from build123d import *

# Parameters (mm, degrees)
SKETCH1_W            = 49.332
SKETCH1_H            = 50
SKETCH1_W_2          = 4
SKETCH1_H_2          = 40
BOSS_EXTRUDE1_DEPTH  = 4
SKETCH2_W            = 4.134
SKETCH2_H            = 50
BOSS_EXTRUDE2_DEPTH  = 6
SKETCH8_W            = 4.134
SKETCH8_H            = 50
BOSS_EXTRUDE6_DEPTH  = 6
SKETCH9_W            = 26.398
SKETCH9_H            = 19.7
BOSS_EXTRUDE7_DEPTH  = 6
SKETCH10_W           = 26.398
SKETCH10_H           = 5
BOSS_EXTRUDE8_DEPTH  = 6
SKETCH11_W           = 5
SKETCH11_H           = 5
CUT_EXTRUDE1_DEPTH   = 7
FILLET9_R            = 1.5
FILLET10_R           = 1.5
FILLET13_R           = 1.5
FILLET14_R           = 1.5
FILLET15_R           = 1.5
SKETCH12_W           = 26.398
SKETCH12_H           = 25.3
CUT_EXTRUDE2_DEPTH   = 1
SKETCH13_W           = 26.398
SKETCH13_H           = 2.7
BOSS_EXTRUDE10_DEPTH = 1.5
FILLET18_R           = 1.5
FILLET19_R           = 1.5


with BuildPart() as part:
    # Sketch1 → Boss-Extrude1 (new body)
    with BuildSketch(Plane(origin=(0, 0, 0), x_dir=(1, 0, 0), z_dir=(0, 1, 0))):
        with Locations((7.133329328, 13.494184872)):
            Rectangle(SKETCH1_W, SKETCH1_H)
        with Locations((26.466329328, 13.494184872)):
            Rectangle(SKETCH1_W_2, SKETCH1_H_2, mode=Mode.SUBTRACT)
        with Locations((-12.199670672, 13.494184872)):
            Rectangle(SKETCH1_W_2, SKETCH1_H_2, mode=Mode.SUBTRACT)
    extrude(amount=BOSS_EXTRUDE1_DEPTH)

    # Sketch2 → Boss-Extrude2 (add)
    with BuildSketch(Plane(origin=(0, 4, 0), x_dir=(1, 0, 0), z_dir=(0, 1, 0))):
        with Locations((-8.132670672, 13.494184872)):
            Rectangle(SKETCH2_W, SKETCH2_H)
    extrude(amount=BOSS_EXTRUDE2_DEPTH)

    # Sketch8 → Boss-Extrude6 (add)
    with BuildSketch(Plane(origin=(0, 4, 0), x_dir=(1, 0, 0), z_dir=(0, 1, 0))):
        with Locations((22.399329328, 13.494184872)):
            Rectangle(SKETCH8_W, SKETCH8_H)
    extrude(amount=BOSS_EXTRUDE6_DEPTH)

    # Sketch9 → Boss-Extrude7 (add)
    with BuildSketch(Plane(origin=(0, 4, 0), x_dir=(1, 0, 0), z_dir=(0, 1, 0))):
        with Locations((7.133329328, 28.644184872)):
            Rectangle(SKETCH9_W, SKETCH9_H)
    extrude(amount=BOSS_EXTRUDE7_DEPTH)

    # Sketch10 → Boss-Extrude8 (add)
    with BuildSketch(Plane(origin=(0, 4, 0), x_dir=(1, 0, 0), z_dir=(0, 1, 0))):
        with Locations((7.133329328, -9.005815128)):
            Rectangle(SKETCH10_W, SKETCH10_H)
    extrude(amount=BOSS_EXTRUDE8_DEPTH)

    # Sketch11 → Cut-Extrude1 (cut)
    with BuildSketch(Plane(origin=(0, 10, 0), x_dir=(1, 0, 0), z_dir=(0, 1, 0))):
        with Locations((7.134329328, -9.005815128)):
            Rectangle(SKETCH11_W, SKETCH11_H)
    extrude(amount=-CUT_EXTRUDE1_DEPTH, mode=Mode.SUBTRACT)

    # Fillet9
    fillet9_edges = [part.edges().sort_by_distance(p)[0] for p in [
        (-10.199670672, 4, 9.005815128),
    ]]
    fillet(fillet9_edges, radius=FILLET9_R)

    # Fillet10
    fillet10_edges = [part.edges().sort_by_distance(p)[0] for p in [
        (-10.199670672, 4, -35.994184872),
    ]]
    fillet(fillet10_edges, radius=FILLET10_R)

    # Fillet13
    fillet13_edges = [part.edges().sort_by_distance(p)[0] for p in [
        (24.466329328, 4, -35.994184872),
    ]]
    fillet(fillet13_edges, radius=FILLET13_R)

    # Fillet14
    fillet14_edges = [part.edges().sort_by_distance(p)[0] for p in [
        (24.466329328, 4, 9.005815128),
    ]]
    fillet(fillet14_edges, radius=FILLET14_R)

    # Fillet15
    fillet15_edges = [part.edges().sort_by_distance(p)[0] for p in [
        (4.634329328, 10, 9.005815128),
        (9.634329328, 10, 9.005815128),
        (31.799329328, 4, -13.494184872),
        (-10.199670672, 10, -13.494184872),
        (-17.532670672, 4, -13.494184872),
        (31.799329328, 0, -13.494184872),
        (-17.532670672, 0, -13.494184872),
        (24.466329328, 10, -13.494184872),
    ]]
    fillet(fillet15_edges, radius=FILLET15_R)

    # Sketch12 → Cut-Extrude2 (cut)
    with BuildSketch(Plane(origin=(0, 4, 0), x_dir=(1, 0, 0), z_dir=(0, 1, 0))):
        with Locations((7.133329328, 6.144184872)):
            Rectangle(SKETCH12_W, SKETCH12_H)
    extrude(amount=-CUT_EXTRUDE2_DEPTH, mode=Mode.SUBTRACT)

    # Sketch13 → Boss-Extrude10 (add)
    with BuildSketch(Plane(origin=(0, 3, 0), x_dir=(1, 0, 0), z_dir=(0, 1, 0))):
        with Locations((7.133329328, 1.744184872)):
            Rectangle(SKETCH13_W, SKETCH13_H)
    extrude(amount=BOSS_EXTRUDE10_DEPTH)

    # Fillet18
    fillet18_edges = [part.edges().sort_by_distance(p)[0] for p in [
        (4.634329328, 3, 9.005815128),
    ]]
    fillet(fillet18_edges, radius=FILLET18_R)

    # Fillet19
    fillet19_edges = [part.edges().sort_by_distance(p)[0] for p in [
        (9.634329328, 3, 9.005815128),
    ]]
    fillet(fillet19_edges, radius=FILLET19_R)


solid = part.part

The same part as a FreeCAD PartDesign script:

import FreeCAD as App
import Part
import Sketcher
Q = App.Units.Quantity


def edges_at(feature, points):
    """Names of the edges that pass closest to the given points."""
    edges = feature.Shape.Edges
    near = lambda p: min(range(len(edges)), key=lambda i: edges[i].distToShape(Part.Vertex(*p))[0])
    return sorted({f"Edge{near(p) + 1}" for p in points})

doc = App.newDocument("Part")
body = doc.addObject("PartDesign::Body", "Body")

sketch1 = doc.addObject("Sketcher::SketchObject", "Sketch")
body.addObject(sketch1)
sketch1.AttachmentSupport = (doc.XZ_Plane, [""])
sketch1.MapMode = "FlatFace"
sketch1.addGeometry(Part.LineSegment(App.Vector(-17.5, -38.5, 0), App.Vector(-17.5, 11.5, 0)), False)
sketch1.addGeometry(Part.LineSegment(App.Vector(-17.5, 11.5, 0), App.Vector(31.8, 11.5, 0)), False)
sketch1.addGeometry(Part.LineSegment(App.Vector(31.8, 11.5, 0), App.Vector(31.8, -38.5, 0)), False)
sketch1.addGeometry(Part.LineSegment(App.Vector(31.8, -38.5, 0), App.Vector(-17.5, -38.5, 0)), False)
sketch1.addGeometry(Part.LineSegment(App.Vector(-10.2, 6.5, 0), App.Vector(-14.2, 6.5, 0)), False)
sketch1.addGeometry(Part.LineSegment(App.Vector(-14.2, 6.5, 0), App.Vector(-14.2, -33.5, 0)), False)
sketch1.addGeometry(Part.LineSegment(App.Vector(-14.2, -33.5, 0), App.Vector(-10.2, -33.5, 0)), False)
sketch1.addGeometry(Part.LineSegment(App.Vector(-10.2, -33.5, 0), App.Vector(-10.2, 6.5, 0)), False)
sketch1.addGeometry(Part.LineSegment(App.Vector(28.5, 6.5, 0), App.Vector(24.5, 6.5, 0)), False)
sketch1.addGeometry(Part.LineSegment(App.Vector(24.5, 6.5, 0), App.Vector(24.5, -33.5, 0)), False)
sketch1.addGeometry(Part.LineSegment(App.Vector(24.5, -33.5, 0), App.Vector(28.5, -33.5, 0)), False)
sketch1.addGeometry(Part.LineSegment(App.Vector(28.5, -33.5, 0), App.Vector(28.5, 6.5, 0)), False)
sketch1.addConstraint(Sketcher.Constraint("Coincident", 0, 2, 1, 1))
sketch1.addConstraint(Sketcher.Constraint("Coincident", 1, 2, 2, 1))
sketch1.addConstraint(Sketcher.Constraint("Coincident", 2, 2, 3, 1))
sketch1.addConstraint(Sketcher.Constraint("Coincident", 3, 2, 0, 1))
sketch1.addConstraint(Sketcher.Constraint("Coincident", 4, 2, 5, 1))
sketch1.addConstraint(Sketcher.Constraint("Coincident", 5, 2, 6, 1))
sketch1.addConstraint(Sketcher.Constraint("Coincident", 6, 2, 7, 1))
sketch1.addConstraint(Sketcher.Constraint("Coincident", 7, 2, 4, 1))
sketch1.addConstraint(Sketcher.Constraint("Coincident", 8, 2, 9, 1))
sketch1.addConstraint(Sketcher.Constraint("Coincident", 9, 2, 10, 1))
sketch1.addConstraint(Sketcher.Constraint("Coincident", 10, 2, 11, 1))
sketch1.addConstraint(Sketcher.Constraint("Coincident", 11, 2, 8, 1))
sketch1.addConstraint(Sketcher.Constraint("Vertical", 0))
sketch1.addConstraint(Sketcher.Constraint("Horizontal", 1))
sketch1.addConstraint(Sketcher.Constraint("Vertical", 2))
sketch1.addConstraint(Sketcher.Constraint("Horizontal", 3))
sketch1.addConstraint(Sketcher.Constraint("Horizontal", 4))
sketch1.addConstraint(Sketcher.Constraint("Vertical", 5))
sketch1.addConstraint(Sketcher.Constraint("Horizontal", 6))
sketch1.addConstraint(Sketcher.Constraint("Vertical", 7))
sketch1.addConstraint(Sketcher.Constraint("Horizontal", 8))
sketch1.addConstraint(Sketcher.Constraint("Vertical", 9))
sketch1.addConstraint(Sketcher.Constraint("Horizontal", 10))
sketch1.addConstraint(Sketcher.Constraint("Vertical", 11))
sketch1.addConstraint(Sketcher.Constraint("Horizontal", 7, 2, 8, 2))
sketch1.addConstraint(Sketcher.Constraint("Horizontal", 6, 2, 9, 2))
sketch1.addConstraint(Sketcher.Constraint("Equal", 6, 8))
sketch1.addConstraint(Sketcher.Constraint("DistanceX", 4, 2, 4, 1, Q("4 mm")))
sketch1.addConstraint(Sketcher.Constraint("DistanceY", 0, 1, 0, 2, Q("50 mm")))
sketch1.addConstraint(Sketcher.Constraint("DistanceY", 5, 2, 5, 1, Q("40 mm")))
sketch1.addConstraint(Sketcher.Constraint("DistanceY", 4, 2, 0, 2, Q("5 mm")))
sketch1.addConstraint(Sketcher.Constraint("DistanceX", 1, 1, 1, 2, Q("49.332 mm")))
sketch1.addConstraint(Sketcher.Constraint("DistanceX", 0, 2, 4, 2, Q("3.333 mm")))
sketch1.addConstraint(Sketcher.Constraint("DistanceX", 8, 2, 1, 2, Q("7.333 mm")))
sketch1.addConstraint(Sketcher.Constraint("DistanceX", 0, 2, -1, 1, Q("17.532671 mm")))
sketch1.addConstraint(Sketcher.Constraint("DistanceY", -1, 1, 0, 2, Q("11.505815 mm")))
pad1 = doc.addObject("PartDesign::Pad", "Pad")
body.addObject(pad1)
pad1.Profile = sketch1
pad1.Length = 4
pad1.Reversed = True

sketch2 = doc.addObject("Sketcher::SketchObject", "Sketch001")
body.addObject(sketch2)
sketch2.AttachmentSupport = (doc.XZ_Plane, [""])
sketch2.MapMode = "FlatFace"
sketch2.AttachmentOffset = App.Placement(App.Vector(0, 0, -4), App.Rotation())
sketch2.addGeometry(Part.LineSegment(App.Vector(-10.2, -38.5, 0), App.Vector(-10.2, 11.5, 0)), False)
sketch2.addGeometry(Part.LineSegment(App.Vector(-10.2, 11.5, 0), App.Vector(-6.1, 11.5, 0)), False)
sketch2.addGeometry(Part.LineSegment(App.Vector(-6.1, 11.5, 0), App.Vector(-6.1, -38.5, 0)), False)
sketch2.addGeometry(Part.LineSegment(App.Vector(-6.1, -38.5, 0), App.Vector(-10.2, -38.5, 0)), False)
sketch2.addConstraint(Sketcher.Constraint("Coincident", 0, 2, 1, 1))
sketch2.addConstraint(Sketcher.Constraint("Coincident", 1, 2, 2, 1))
sketch2.addConstraint(Sketcher.Constraint("Coincident", 2, 2, 3, 1))
sketch2.addConstraint(Sketcher.Constraint("Coincident", 3, 2, 0, 1))
sketch2.addConstraint(Sketcher.Constraint("Vertical", 0))
sketch2.addConstraint(Sketcher.Constraint("Horizontal", 1))
sketch2.addConstraint(Sketcher.Constraint("Vertical", 2))
sketch2.addConstraint(Sketcher.Constraint("Horizontal", 3))
sketch2.addConstraint(Sketcher.Constraint("DistanceY", 0, 1, 0, 2, Q("50 mm")))
sketch2.addConstraint(Sketcher.Constraint("DistanceX", 1, 1, 1, 2, Q("4.134 mm")))
sketch2.addConstraint(Sketcher.Constraint("DistanceX", 0, 2, -1, 1, Q("10.199671 mm")))
sketch2.addConstraint(Sketcher.Constraint("DistanceY", -1, 1, 0, 2, Q("11.505815 mm")))
pad2 = doc.addObject("PartDesign::Pad", "Pad001")
body.addObject(pad2)
pad2.Profile = sketch2
pad2.Length = 6
pad2.Reversed = True

sketch3 = doc.addObject("Sketcher::SketchObject", "Sketch002")
body.addObject(sketch3)
sketch3.AttachmentSupport = (doc.XZ_Plane, [""])
sketch3.MapMode = "FlatFace"
sketch3.AttachmentOffset = App.Placement(App.Vector(0, 0, -4), App.Rotation())
sketch3.addGeometry(Part.LineSegment(App.Vector(20.3, -38.5, 0), App.Vector(20.3, 11.5, 0)), False)
sketch3.addGeometry(Part.LineSegment(App.Vector(20.3, 11.5, 0), App.Vector(24.5, 11.5, 0)), False)
sketch3.addGeometry(Part.LineSegment(App.Vector(24.5, 11.5, 0), App.Vector(24.5, -38.5, 0)), False)
sketch3.addGeometry(Part.LineSegment(App.Vector(24.5, -38.5, 0), App.Vector(20.3, -38.5, 0)), False)
sketch3.addConstraint(Sketcher.Constraint("Coincident", 0, 2, 1, 1))
sketch3.addConstraint(Sketcher.Constraint("Coincident", 1, 2, 2, 1))
sketch3.addConstraint(Sketcher.Constraint("Coincident", 2, 2, 3, 1))
sketch3.addConstraint(Sketcher.Constraint("Coincident", 3, 2, 0, 1))
sketch3.addConstraint(Sketcher.Constraint("Vertical", 0))
sketch3.addConstraint(Sketcher.Constraint("Horizontal", 1))
sketch3.addConstraint(Sketcher.Constraint("Vertical", 2))
sketch3.addConstraint(Sketcher.Constraint("Horizontal", 3))
sketch3.addConstraint(Sketcher.Constraint("DistanceY", 0, 1, 0, 2, Q("50 mm")))
sketch3.addConstraint(Sketcher.Constraint("DistanceX", 1, 1, 1, 2, Q("4.134 mm")))
sketch3.addConstraint(Sketcher.Constraint("DistanceX", -1, 1, 0, 2, Q("20.332329 mm")))
sketch3.addConstraint(Sketcher.Constraint("DistanceY", -1, 1, 0, 2, Q("11.505815 mm")))
pad3 = doc.addObject("PartDesign::Pad", "Pad002")
body.addObject(pad3)
pad3.Profile = sketch3
pad3.Length = 6
pad3.Reversed = True

sketch4 = doc.addObject("Sketcher::SketchObject", "Sketch003")
body.addObject(sketch4)
sketch4.AttachmentSupport = (doc.XZ_Plane, [""])
sketch4.MapMode = "FlatFace"
sketch4.AttachmentOffset = App.Placement(App.Vector(0, 0, -4), App.Rotation())
sketch4.addGeometry(Part.LineSegment(App.Vector(-6, -38, 0), App.Vector(-6, -19, 0)), False)
sketch4.addGeometry(Part.LineSegment(App.Vector(-6, -19, 0), App.Vector(20, -19, 0)), False)
sketch4.addGeometry(Part.LineSegment(App.Vector(20, -19, 0), App.Vector(20, -38, 0)), False)
sketch4.addGeometry(Part.LineSegment(App.Vector(20, -38, 0), App.Vector(-6, -38, 0)), False)
sketch4.addConstraint(Sketcher.Constraint("Coincident", 0, 2, 1, 1))
sketch4.addConstraint(Sketcher.Constraint("Coincident", 1, 2, 2, 1))
sketch4.addConstraint(Sketcher.Constraint("Coincident", 2, 2, 3, 1))
sketch4.addConstraint(Sketcher.Constraint("Coincident", 3, 2, 0, 1))
sketch4.addConstraint(Sketcher.Constraint("Vertical", 0))
sketch4.addConstraint(Sketcher.Constraint("Horizontal", 1))
sketch4.addConstraint(Sketcher.Constraint("Vertical", 2))
sketch4.addConstraint(Sketcher.Constraint("Horizontal", 3))
sketch4.addConstraint(Sketcher.Constraint("DistanceY", 0, 1, 0, 2, Q("19.7 mm")))
sketch4.addConstraint(Sketcher.Constraint("DistanceX", 1, 1, 1, 2, Q("26.398 mm")))
sketch4.addConstraint(Sketcher.Constraint("DistanceX", 0, 2, -1, 1, Q("6.065671 mm")))
sketch4.addConstraint(Sketcher.Constraint("DistanceY", 0, 2, -1, 1, Q("18.794185 mm")))
pad4 = doc.addObject("PartDesign::Pad", "Pad003")
body.addObject(pad4)
pad4.Profile = sketch4
pad4.Length = 6
pad4.Reversed = True

sketch5 = doc.addObject("Sketcher::SketchObject", "Sketch004")
body.addObject(sketch5)
sketch5.AttachmentSupport = (doc.XZ_Plane, [""])
sketch5.MapMode = "FlatFace"
sketch5.AttachmentOffset = App.Placement(App.Vector(0, 0, -4), App.Rotation())
sketch5.addGeometry(Part.LineSegment(App.Vector(-6, 7, 0), App.Vector(-6, 12, 0)), False)
sketch5.addGeometry(Part.LineSegment(App.Vector(-6, 12, 0), App.Vector(20, 12, 0)), False)
sketch5.addGeometry(Part.LineSegment(App.Vector(20, 12, 0), App.Vector(20, 7, 0)), False)
sketch5.addGeometry(Part.LineSegment(App.Vector(20, 7, 0), App.Vector(-6, 7, 0)), False)
sketch5.addConstraint(Sketcher.Constraint("Coincident", 0, 2, 1, 1))
sketch5.addConstraint(Sketcher.Constraint("Coincident", 1, 2, 2, 1))
sketch5.addConstraint(Sketcher.Constraint("Coincident", 2, 2, 3, 1))
sketch5.addConstraint(Sketcher.Constraint("Coincident", 3, 2, 0, 1))
sketch5.addConstraint(Sketcher.Constraint("Vertical", 0))
sketch5.addConstraint(Sketcher.Constraint("Horizontal", 1))
sketch5.addConstraint(Sketcher.Constraint("Vertical", 2))
sketch5.addConstraint(Sketcher.Constraint("Horizontal", 3))
sketch5.addConstraint(Sketcher.Constraint("DistanceY", 0, 1, 0, 2, Q("5 mm")))
sketch5.addConstraint(Sketcher.Constraint("DistanceX", 1, 1, 1, 2, Q("26.398 mm")))
sketch5.addConstraint(Sketcher.Constraint("DistanceX", 0, 2, -1, 1, Q("6.065671 mm")))
sketch5.addConstraint(Sketcher.Constraint("DistanceY", -1, 1, 0, 2, Q("11.505815 mm")))
pad5 = doc.addObject("PartDesign::Pad", "Pad004")
body.addObject(pad5)
pad5.Profile = sketch5
pad5.Length = 6
pad5.Reversed = True

sketch6 = doc.addObject("Sketcher::SketchObject", "Sketch005")
body.addObject(sketch6)
sketch6.AttachmentSupport = (doc.XZ_Plane, [""])
sketch6.MapMode = "FlatFace"
sketch6.AttachmentOffset = App.Placement(App.Vector(0, 0, -10), App.Rotation())
sketch6.addGeometry(Part.LineSegment(App.Vector(5, 7, 0), App.Vector(5, 12, 0)), False)
sketch6.addGeometry(Part.LineSegment(App.Vector(5, 12, 0), App.Vector(10, 12, 0)), False)
sketch6.addGeometry(Part.LineSegment(App.Vector(10, 12, 0), App.Vector(10, 7, 0)), False)
sketch6.addGeometry(Part.LineSegment(App.Vector(10, 7, 0), App.Vector(5, 7, 0)), False)
sketch6.addConstraint(Sketcher.Constraint("Coincident", 0, 2, 1, 1))
sketch6.addConstraint(Sketcher.Constraint("Coincident", 1, 2, 2, 1))
sketch6.addConstraint(Sketcher.Constraint("Coincident", 2, 2, 3, 1))
sketch6.addConstraint(Sketcher.Constraint("Coincident", 3, 2, 0, 1))
sketch6.addConstraint(Sketcher.Constraint("Vertical", 0))
sketch6.addConstraint(Sketcher.Constraint("Horizontal", 1))
sketch6.addConstraint(Sketcher.Constraint("Vertical", 2))
sketch6.addConstraint(Sketcher.Constraint("Horizontal", 3))
sketch6.addConstraint(Sketcher.Constraint("Equal", 3, 0))
sketch6.addConstraint(Sketcher.Constraint("DistanceX", 1, 1, 1, 2, Q("5 mm")))
sketch6.addConstraint(Sketcher.Constraint("DistanceX", -1, 1, 0, 2, Q("4.634329 mm")))
sketch6.addConstraint(Sketcher.Constraint("DistanceY", -1, 1, 0, 2, Q("11.505815 mm")))
pocket1 = doc.addObject("PartDesign::Pocket", "Pocket")
body.addObject(pocket1)
pocket1.Profile = sketch6
pocket1.Length = 7
pocket1.Reversed = True
doc.recompute()

fillet = doc.addObject("PartDesign::Fillet", "Fillet")
body.addObject(fillet)
fillet.Base = (pocket1, edges_at(pocket1, [(-10.2, 4, 9.006)]))
fillet.Radius = 1.5
doc.recompute()

fillet2 = doc.addObject("PartDesign::Fillet", "Fillet001")
body.addObject(fillet2)
fillet2.Base = (fillet, edges_at(fillet, [(-10.2, 4, -35.994)]))
fillet2.Radius = 1.5
doc.recompute()

fillet3 = doc.addObject("PartDesign::Fillet", "Fillet002")
body.addObject(fillet3)
fillet3.Base = (fillet2, edges_at(fillet2, [(24.466, 4, -35.994)]))
fillet3.Radius = 1.5
doc.recompute()

fillet4 = doc.addObject("PartDesign::Fillet", "Fillet003")
body.addObject(fillet4)
fillet4.Base = (fillet3, edges_at(fillet3, [(24.466, 4, 9.006)]))
fillet4.Radius = 1.5
doc.recompute()

fillet5 = doc.addObject("PartDesign::Fillet", "Fillet004")
body.addObject(fillet5)
fillet5.Base = (fillet4, edges_at(fillet4, [
    (4.634, 10, 9.006),
    (9.634, 10, 9.006),
    (31.799, 4, -13.494),
    (-10.2, 10, -13.494),
    (-17.533, 4, -13.494),
    (31.799, 0, -13.494),
    (-17.533, 0, -13.494),
    (24.466, 10, -13.494),
]))
fillet5.Radius = 1.5

sketch7 = doc.addObject("Sketcher::SketchObject", "Sketch006")
body.addObject(sketch7)
sketch7.AttachmentSupport = (doc.XZ_Plane, [""])
sketch7.MapMode = "FlatFace"
sketch7.AttachmentOffset = App.Placement(App.Vector(0, 0, -4), App.Rotation())
sketch7.addGeometry(Part.LineSegment(App.Vector(-6, -19, 0), App.Vector(-6, 7, 0)), False)
sketch7.addGeometry(Part.LineSegment(App.Vector(-6, 7, 0), App.Vector(20, 7, 0)), False)
sketch7.addGeometry(Part.LineSegment(App.Vector(20, 7, 0), App.Vector(20, -19, 0)), False)
sketch7.addGeometry(Part.LineSegment(App.Vector(20, -19, 0), App.Vector(-6, -19, 0)), False)
sketch7.addConstraint(Sketcher.Constraint("Coincident", 0, 2, 1, 1))
sketch7.addConstraint(Sketcher.Constraint("Coincident", 1, 2, 2, 1))
sketch7.addConstraint(Sketcher.Constraint("Coincident", 2, 2, 3, 1))
sketch7.addConstraint(Sketcher.Constraint("Coincident", 3, 2, 0, 1))
sketch7.addConstraint(Sketcher.Constraint("Vertical", 0))
sketch7.addConstraint(Sketcher.Constraint("Horizontal", 1))
sketch7.addConstraint(Sketcher.Constraint("Vertical", 2))
sketch7.addConstraint(Sketcher.Constraint("Horizontal", 3))
sketch7.addConstraint(Sketcher.Constraint("DistanceY", 0, 1, 0, 2, Q("25.3 mm")))
sketch7.addConstraint(Sketcher.Constraint("DistanceX", 1, 1, 1, 2, Q("26.398 mm")))
sketch7.addConstraint(Sketcher.Constraint("DistanceX", 0, 2, -1, 1, Q("6.065671 mm")))
sketch7.addConstraint(Sketcher.Constraint("DistanceY", -1, 1, 0, 2, Q("6.505815 mm")))
pocket2 = doc.addObject("PartDesign::Pocket", "Pocket001")
body.addObject(pocket2)
pocket2.Profile = sketch7
pocket2.Length = 1
pocket2.Reversed = True

sketch8 = doc.addObject("Sketcher::SketchObject", "Sketch007")
body.addObject(sketch8)
sketch8.AttachmentSupport = (doc.XZ_Plane, [""])
sketch8.MapMode = "FlatFace"
sketch8.AttachmentOffset = App.Placement(App.Vector(0, 0, -3), App.Rotation())
sketch8.addGeometry(Part.LineSegment(App.Vector(-6.1, -3.1, 0), App.Vector(-6.1, -0.4, 0)), False)
sketch8.addGeometry(Part.LineSegment(App.Vector(-6.1, -0.4, 0), App.Vector(20.3, -0.4, 0)), False)
sketch8.addGeometry(Part.LineSegment(App.Vector(20.3, -0.4, 0), App.Vector(20.3, -3.1, 0)), False)
sketch8.addGeometry(Part.LineSegment(App.Vector(20.3, -3.1, 0), App.Vector(-6.1, -3.1, 0)), False)
sketch8.addConstraint(Sketcher.Constraint("Coincident", 0, 2, 1, 1))
sketch8.addConstraint(Sketcher.Constraint("Coincident", 1, 2, 2, 1))
sketch8.addConstraint(Sketcher.Constraint("Coincident", 2, 2, 3, 1))
sketch8.addConstraint(Sketcher.Constraint("Coincident", 3, 2, 0, 1))
sketch8.addConstraint(Sketcher.Constraint("Vertical", 0))
sketch8.addConstraint(Sketcher.Constraint("Horizontal", 1))
sketch8.addConstraint(Sketcher.Constraint("Vertical", 2))
sketch8.addConstraint(Sketcher.Constraint("Horizontal", 3))
sketch8.addConstraint(Sketcher.Constraint("DistanceY", 0, 1, 0, 2, Q("2.7 mm")))
sketch8.addConstraint(Sketcher.Constraint("DistanceX", 1, 1, 1, 2, Q("26.398 mm")))
sketch8.addConstraint(Sketcher.Constraint("DistanceX", 0, 2, -1, 1, Q("6.065671 mm")))
sketch8.addConstraint(Sketcher.Constraint("DistanceY", 0, 2, -1, 1, Q("0.394185 mm")))
pad6 = doc.addObject("PartDesign::Pad", "Pad005")
body.addObject(pad6)
pad6.Profile = sketch8
pad6.Length = 1.5
pad6.Reversed = True
doc.recompute()

fillet6 = doc.addObject("PartDesign::Fillet", "Fillet005")
body.addObject(fillet6)
fillet6.Base = (pad6, edges_at(pad6, [(4.634, 3, 9.006)]))
fillet6.Radius = 1.5
doc.recompute()

fillet7 = doc.addObject("PartDesign::Fillet", "Fillet006")
body.addObject(fillet7)
fillet7.Base = (fillet6, edges_at(fillet6, [(9.634, 3, 9.006)]))
fillet7.Radius = 1.5

doc.recompute()
